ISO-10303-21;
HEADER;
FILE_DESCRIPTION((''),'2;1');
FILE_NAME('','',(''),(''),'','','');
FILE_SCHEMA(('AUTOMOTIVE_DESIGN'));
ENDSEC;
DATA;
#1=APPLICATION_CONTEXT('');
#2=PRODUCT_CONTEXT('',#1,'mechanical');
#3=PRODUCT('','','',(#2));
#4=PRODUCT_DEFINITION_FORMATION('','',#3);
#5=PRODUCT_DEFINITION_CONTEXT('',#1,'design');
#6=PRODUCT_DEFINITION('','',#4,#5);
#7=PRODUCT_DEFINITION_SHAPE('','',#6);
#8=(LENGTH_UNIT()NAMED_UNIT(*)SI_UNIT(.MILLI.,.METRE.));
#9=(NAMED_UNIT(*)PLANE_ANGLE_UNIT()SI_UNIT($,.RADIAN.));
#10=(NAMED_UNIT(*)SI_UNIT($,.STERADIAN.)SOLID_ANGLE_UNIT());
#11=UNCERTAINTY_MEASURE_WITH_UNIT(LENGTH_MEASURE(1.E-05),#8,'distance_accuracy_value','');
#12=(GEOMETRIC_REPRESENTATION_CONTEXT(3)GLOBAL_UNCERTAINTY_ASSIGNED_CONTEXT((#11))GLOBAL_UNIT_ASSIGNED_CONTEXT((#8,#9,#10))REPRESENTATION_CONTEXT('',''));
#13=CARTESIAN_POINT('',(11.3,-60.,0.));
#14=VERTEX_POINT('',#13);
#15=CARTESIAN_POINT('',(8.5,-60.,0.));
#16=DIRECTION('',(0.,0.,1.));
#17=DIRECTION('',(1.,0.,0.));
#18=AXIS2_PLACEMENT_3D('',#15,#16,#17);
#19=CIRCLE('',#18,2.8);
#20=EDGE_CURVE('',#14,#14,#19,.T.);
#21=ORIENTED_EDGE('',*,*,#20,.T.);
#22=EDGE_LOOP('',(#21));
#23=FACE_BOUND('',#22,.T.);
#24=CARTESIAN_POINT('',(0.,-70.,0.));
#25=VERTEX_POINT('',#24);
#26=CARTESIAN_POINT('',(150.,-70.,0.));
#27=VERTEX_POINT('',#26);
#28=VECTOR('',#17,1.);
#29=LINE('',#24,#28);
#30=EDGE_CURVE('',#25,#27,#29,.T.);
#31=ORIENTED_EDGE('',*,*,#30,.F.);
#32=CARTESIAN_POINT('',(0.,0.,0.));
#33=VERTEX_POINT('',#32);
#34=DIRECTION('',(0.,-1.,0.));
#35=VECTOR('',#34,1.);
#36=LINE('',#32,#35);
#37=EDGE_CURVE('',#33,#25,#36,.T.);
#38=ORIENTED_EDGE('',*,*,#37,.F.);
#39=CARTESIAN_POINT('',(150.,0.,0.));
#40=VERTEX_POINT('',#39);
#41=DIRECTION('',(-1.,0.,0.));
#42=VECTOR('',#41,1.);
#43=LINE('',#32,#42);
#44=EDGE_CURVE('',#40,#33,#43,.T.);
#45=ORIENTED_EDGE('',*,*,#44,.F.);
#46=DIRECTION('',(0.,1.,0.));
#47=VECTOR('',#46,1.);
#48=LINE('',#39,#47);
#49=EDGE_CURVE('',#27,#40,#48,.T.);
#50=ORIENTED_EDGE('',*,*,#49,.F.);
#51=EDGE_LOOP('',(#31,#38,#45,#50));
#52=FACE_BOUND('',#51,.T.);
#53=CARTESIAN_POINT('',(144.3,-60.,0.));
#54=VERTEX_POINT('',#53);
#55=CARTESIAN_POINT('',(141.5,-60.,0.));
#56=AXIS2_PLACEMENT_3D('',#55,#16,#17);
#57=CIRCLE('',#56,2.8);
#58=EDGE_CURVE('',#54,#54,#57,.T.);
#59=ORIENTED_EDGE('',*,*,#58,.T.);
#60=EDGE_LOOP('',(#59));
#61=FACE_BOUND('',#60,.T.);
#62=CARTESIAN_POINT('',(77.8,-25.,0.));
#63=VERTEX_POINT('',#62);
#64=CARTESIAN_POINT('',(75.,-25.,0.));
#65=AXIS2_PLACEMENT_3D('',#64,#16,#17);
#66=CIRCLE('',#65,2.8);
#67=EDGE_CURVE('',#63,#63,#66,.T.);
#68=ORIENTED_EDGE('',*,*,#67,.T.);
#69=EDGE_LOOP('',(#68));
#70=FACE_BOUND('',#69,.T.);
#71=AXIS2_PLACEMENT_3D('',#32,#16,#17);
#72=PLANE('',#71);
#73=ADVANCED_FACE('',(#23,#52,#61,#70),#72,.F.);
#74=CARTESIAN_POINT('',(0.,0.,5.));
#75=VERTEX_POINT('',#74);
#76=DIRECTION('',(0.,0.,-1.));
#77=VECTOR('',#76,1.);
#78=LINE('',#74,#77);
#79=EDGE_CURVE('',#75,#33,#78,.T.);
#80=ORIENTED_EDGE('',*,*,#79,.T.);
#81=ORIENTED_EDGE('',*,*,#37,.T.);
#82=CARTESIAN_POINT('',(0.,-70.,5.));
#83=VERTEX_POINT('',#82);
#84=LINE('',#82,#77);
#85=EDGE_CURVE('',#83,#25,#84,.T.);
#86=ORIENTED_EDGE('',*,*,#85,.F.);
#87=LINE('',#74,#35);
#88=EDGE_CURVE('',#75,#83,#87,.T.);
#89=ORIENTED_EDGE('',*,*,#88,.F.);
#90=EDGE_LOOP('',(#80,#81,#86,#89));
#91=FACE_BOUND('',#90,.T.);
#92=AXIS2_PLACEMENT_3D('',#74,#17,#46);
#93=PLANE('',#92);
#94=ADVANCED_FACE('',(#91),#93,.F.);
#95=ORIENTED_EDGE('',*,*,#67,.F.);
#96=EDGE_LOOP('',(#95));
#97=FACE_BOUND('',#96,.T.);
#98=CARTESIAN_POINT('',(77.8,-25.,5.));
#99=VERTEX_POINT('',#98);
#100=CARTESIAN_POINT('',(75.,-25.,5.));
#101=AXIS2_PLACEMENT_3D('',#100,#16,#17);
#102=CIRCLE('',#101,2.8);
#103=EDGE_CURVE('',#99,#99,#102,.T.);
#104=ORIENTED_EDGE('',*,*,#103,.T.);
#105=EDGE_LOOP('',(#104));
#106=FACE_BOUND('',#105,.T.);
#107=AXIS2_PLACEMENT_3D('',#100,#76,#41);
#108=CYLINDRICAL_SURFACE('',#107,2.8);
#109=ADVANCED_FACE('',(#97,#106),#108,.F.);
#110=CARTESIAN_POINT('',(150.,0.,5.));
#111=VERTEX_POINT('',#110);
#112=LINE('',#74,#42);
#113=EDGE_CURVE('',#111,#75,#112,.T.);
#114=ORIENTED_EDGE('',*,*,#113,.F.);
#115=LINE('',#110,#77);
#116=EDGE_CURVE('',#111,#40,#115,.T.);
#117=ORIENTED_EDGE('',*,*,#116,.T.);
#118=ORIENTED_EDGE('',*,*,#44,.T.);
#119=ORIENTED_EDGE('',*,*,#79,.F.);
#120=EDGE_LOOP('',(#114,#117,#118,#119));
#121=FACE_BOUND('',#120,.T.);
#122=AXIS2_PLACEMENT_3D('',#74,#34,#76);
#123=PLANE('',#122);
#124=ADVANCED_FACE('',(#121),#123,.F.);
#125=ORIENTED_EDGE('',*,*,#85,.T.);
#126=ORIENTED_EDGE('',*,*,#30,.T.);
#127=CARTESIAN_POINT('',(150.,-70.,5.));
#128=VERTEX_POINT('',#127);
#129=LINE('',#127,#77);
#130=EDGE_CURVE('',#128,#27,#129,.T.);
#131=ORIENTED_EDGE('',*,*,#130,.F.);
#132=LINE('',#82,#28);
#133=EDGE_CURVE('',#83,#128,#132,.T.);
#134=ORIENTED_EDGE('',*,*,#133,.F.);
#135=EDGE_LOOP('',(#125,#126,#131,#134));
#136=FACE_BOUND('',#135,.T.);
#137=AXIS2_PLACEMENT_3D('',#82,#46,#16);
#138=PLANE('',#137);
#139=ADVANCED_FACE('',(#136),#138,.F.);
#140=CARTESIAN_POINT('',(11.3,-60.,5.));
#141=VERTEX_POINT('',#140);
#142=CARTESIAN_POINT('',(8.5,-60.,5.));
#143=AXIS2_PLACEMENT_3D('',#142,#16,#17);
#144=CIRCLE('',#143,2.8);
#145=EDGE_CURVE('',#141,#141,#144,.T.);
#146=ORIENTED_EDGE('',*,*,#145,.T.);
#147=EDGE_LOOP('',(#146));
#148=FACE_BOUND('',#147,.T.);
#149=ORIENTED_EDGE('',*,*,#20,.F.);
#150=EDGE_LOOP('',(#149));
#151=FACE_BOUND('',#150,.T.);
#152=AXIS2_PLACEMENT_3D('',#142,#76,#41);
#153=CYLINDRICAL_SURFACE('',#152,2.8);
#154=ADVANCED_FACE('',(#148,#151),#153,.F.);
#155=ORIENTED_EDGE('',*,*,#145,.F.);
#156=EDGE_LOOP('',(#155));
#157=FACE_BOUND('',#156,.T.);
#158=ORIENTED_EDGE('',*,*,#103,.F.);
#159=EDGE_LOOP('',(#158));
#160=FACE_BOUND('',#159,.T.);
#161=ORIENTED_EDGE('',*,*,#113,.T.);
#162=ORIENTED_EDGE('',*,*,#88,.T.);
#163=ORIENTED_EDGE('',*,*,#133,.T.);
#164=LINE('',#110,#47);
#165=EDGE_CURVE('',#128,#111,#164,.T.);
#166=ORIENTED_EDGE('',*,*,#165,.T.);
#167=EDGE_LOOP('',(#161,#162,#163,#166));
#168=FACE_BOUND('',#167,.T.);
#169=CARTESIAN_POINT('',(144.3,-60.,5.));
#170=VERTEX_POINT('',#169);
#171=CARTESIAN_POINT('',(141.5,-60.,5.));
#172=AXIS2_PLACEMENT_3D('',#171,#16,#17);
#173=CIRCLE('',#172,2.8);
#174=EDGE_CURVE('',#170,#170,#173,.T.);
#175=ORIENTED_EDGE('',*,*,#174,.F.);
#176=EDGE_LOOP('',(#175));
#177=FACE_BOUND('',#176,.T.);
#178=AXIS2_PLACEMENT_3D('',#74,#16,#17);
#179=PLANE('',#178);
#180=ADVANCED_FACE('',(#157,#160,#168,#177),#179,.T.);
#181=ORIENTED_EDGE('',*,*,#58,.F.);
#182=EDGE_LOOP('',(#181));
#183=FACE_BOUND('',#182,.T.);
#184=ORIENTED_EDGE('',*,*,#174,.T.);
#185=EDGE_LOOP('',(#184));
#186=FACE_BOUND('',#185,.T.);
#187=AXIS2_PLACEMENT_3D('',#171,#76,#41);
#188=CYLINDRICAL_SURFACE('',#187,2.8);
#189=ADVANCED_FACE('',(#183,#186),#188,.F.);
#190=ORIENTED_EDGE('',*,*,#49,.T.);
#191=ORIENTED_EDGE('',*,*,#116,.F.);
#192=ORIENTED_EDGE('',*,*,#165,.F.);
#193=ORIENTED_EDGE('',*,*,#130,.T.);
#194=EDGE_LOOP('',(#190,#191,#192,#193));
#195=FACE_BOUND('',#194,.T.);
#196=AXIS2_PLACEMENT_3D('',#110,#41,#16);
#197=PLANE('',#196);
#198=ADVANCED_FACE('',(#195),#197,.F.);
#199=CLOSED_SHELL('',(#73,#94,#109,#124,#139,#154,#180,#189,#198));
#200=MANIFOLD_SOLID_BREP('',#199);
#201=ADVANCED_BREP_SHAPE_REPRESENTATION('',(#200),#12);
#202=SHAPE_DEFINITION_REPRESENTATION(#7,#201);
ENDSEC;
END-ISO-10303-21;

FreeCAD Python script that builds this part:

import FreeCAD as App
import Part
import Sketcher
from FreeCAD import Vector
Q = App.Units.Quantity

doc = App.newDocument("Part")
body = doc.addObject("PartDesign::Body", "Body")

# Sketch on XY plane
sketch1 = doc.addObject("Sketcher::SketchObject", "Sketch")
body.addObject(sketch1)
sketch1.AttachmentSupport = (doc.XY_Plane, [""])
sketch1.MapMode = "FlatFace"
sketch1.addGeometry(Part.LineSegment(Vector(0, 0, 0), Vector(0, -70, 0)), False)
sketch1.addGeometry(Part.LineSegment(Vector(0, -70, 0), Vector(150, -70, 0)), False)
sketch1.addGeometry(Part.LineSegment(Vector(150, -70, 0), Vector(150, 0, 0)), False)
sketch1.addGeometry(Part.LineSegment(Vector(150, 0, 0), Vector(0, 0, 0)), False)
sketch1.addGeometry(Part.Circle(Vector(8.5, -60, 0), Vector(0, 0, 1), 2.8), False)
sketch1.addGeometry(Part.Circle(Vector(141.5, -60, 0), Vector(0, 0, 1), 2.8), False)
sketch1.addGeometry(Part.Circle(Vector(75, -25, 0), Vector(0, 0, 1), 2.8), False)
sketch1.addConstraint(Sketcher.Constraint("Coincident", 0, 2, 1, 1))
sketch1.addConstraint(Sketcher.Constraint("Coincident", 1, 2, 2, 1))
sketch1.addConstraint(Sketcher.Constraint("Coincident", 2, 2, 3, 1))
sketch1.addConstraint(Sketcher.Constraint("Coincident", 3, 2, 0, 1))
sketch1.addConstraint(Sketcher.Constraint("Vertical", 0))
sketch1.addConstraint(Sketcher.Constraint("Horizontal", 1))
sketch1.addConstraint(Sketcher.Constraint("Vertical", 2))
sketch1.addConstraint(Sketcher.Constraint("Horizontal", 3))
sketch1.addConstraint(Sketcher.Constraint("Coincident", 3, 2, -1, 1))
sketch1.addConstraint(Sketcher.Constraint("Equal", 4, 5))
sketch1.addConstraint(Sketcher.Constraint("Equal", 5, 6))
sketch1.addConstraint(Sketcher.Constraint("Horizontal", 4, 3, 5, 3))
sketch1.addConstraint(Sketcher.Constraint("Diameter", 4, Q("5.6 mm")))
sketch1.addConstraint(Sketcher.Constraint("DistanceX", 1, 1, 1, 2, Q("150 mm")))
sketch1.addConstraint(Sketcher.Constraint("DistanceY", 0, 2, 0, 1, Q("70 mm")))
sketch1.addConstraint(Sketcher.Constraint("DistanceY", 4, 3, -1, 1, Q("60 mm")))
sketch1.addConstraint(Sketcher.Constraint("DistanceX", -1, 1, 6, 3, Q("75 mm")))
sketch1.addConstraint(Sketcher.Constraint("DistanceY", 6, 3, -1, 1, Q("25 mm")))
sketch1.addConstraint(Sketcher.Constraint("DistanceX", 4, 3, 5, 3, Q("133 mm")))
sketch1.addConstraint(Sketcher.Constraint("DistanceX", -1, 1, 4, 3, Q("8.5 mm")))
pad1 = doc.addObject("PartDesign::Pad", "Pad")
body.addObject(pad1)
pad1.Profile = sketch1
pad1.Length = 5

doc.recompute()
